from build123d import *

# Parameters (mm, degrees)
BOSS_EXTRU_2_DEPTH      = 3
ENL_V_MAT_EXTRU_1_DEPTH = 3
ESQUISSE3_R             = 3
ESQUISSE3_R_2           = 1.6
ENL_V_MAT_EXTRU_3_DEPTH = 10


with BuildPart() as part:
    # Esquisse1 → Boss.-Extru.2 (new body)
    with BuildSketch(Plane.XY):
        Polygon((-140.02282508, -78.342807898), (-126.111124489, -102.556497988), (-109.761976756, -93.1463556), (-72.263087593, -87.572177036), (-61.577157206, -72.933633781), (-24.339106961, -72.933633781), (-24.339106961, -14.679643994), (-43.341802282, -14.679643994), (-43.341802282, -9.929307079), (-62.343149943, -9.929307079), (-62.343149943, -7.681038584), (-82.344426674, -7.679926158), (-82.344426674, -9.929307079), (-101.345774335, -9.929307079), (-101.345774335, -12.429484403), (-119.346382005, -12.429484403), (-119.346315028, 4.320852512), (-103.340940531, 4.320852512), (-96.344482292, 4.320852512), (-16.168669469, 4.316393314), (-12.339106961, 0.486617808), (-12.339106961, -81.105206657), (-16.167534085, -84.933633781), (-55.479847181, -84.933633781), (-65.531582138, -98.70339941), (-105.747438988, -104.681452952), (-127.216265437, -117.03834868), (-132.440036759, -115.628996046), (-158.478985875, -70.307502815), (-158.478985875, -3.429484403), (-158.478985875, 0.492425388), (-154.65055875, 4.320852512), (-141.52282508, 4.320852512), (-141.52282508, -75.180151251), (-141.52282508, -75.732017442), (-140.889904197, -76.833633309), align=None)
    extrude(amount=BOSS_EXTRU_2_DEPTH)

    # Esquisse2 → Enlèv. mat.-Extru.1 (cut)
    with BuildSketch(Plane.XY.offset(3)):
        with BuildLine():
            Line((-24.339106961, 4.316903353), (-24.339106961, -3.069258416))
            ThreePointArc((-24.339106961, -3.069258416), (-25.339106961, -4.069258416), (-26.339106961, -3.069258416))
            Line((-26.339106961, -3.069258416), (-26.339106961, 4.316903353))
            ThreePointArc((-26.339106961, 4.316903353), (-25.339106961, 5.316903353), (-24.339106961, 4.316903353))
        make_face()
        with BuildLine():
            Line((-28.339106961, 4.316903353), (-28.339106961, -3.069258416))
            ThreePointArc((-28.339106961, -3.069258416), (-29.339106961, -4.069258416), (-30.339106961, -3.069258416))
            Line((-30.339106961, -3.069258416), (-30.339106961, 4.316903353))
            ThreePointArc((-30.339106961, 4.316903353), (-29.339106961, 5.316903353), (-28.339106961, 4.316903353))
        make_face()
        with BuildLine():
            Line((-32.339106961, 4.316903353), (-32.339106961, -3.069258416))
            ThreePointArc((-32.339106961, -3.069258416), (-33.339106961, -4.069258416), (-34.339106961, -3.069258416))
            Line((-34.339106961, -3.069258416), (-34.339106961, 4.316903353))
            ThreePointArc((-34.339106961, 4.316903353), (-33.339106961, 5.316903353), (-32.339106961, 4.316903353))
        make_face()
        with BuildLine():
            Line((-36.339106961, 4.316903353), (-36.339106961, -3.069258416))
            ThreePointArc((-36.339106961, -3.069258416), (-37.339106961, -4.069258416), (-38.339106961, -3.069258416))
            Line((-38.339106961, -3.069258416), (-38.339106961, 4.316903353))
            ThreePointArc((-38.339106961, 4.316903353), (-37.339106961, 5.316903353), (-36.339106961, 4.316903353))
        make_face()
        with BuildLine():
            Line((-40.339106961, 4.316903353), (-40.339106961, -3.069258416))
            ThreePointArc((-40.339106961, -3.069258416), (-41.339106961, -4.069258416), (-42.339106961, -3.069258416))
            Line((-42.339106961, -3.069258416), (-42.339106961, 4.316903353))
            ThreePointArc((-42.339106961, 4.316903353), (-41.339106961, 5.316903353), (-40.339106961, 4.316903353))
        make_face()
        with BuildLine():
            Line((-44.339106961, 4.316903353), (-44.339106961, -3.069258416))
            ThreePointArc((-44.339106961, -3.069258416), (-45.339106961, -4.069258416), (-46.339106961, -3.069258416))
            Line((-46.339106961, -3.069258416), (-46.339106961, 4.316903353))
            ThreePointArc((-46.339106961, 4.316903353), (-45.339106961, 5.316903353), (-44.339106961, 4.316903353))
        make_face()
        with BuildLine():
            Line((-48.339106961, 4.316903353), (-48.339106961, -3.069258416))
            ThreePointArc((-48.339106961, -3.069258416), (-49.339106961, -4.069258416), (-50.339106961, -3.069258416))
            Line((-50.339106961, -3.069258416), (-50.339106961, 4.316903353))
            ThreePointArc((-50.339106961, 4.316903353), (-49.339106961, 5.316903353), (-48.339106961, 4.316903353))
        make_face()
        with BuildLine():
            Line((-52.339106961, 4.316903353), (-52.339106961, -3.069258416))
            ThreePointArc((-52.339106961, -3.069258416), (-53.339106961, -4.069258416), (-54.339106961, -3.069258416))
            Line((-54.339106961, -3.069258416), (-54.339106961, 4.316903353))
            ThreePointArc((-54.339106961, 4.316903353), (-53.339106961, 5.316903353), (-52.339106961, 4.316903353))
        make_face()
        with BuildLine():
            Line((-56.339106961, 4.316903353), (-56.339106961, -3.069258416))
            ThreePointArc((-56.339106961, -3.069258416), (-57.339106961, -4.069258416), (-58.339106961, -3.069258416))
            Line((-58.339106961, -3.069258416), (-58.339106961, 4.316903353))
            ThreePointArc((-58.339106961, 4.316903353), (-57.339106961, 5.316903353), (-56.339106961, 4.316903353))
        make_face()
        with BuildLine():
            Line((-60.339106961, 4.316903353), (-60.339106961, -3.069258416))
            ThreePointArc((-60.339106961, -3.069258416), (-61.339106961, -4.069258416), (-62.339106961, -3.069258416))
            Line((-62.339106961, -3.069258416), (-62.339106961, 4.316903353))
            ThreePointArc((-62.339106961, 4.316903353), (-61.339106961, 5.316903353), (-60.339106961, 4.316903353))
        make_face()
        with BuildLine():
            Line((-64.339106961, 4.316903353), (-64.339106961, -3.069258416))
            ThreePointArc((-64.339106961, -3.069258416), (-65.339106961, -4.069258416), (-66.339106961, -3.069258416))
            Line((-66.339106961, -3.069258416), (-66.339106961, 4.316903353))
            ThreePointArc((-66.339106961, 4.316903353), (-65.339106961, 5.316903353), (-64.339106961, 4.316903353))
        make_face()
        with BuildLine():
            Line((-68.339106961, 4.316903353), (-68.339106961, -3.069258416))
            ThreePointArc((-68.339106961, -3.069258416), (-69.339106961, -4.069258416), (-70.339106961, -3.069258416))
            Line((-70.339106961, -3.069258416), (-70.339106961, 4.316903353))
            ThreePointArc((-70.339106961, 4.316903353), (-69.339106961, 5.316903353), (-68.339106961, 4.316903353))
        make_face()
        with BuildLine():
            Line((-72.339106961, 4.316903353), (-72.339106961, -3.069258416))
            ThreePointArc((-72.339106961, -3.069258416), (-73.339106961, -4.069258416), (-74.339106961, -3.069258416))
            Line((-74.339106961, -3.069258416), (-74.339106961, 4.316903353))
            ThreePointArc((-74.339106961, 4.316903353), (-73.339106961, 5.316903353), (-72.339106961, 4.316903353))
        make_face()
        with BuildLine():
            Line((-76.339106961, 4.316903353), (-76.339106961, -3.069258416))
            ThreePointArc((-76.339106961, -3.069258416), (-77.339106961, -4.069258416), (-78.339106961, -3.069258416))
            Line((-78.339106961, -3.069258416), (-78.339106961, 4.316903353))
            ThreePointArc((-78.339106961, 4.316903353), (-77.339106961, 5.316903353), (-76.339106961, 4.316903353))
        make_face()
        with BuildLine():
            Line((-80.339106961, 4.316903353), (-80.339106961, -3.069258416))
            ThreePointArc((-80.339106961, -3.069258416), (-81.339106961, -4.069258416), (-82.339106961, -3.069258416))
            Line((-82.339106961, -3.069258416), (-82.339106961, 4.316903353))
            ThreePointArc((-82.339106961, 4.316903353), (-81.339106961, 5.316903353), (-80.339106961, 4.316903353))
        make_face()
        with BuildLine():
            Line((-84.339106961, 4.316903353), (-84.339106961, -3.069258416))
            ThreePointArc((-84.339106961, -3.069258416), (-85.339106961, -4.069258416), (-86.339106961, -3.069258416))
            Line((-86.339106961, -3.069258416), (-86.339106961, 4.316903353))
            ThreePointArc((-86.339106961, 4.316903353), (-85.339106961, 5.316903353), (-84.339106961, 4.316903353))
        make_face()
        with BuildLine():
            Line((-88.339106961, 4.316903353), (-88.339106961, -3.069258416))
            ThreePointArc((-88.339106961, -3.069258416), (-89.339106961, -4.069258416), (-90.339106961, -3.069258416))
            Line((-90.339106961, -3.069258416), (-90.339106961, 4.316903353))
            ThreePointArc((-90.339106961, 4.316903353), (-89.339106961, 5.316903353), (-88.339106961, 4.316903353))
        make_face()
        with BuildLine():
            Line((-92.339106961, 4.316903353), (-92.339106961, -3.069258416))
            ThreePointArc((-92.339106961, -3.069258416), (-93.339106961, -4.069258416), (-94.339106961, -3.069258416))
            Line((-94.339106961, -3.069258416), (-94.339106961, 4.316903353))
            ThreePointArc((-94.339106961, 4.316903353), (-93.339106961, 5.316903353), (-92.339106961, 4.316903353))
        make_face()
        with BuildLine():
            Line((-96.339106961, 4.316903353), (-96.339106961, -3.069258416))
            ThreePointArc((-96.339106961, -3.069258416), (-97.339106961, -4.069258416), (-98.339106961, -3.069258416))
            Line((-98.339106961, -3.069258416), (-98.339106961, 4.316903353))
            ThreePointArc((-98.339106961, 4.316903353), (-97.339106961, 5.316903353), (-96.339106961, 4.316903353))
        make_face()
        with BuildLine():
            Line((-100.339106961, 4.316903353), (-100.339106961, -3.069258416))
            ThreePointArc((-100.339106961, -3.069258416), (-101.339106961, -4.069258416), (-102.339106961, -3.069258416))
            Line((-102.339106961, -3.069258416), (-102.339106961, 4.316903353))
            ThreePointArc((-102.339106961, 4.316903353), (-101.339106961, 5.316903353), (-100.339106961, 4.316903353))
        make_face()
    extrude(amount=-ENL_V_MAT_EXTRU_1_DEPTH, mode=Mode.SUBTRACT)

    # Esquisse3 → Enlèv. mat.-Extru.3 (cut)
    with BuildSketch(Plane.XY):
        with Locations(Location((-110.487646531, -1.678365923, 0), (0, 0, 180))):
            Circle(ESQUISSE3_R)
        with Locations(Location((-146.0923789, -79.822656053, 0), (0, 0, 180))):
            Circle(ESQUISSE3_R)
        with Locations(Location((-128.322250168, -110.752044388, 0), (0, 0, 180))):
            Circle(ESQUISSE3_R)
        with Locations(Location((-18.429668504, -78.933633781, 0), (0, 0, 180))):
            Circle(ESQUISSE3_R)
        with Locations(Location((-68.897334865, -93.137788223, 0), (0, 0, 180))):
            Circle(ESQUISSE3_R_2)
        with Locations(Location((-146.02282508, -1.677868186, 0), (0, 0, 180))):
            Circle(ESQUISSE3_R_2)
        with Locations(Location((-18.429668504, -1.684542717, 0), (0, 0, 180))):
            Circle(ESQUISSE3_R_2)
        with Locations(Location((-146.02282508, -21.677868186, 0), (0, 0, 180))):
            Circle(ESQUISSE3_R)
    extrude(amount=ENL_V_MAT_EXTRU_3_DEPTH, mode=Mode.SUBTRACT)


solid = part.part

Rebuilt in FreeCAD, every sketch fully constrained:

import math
import FreeCAD as App
import Part
import Sketcher

V = App.Vector
Q = App.Units.Quantity


def add_polygon(sketch, points):
    """Adds a closed chain of lines whose ends are joined by coincident constraints."""
    first, n = sketch.GeometryCount, len(points)
    for a, b in zip(points, points[1:] + points[:1]):
        sketch.addGeometry(Part.LineSegment(App.Vector(*a, 0), App.Vector(*b, 0)), False)
    for i in range(n):
        sketch.addConstraint(Sketcher.Constraint("Coincident", first + i, 2, first + (i + 1) % n, 1))

doc = App.newDocument("Part")
params = doc.addObject("Spreadsheet::Sheet", "Params")
for row, (alias, value) in enumerate([
    ("pad1_length", "3 mm"),
    ("sketch2_radius", "1 mm"),
    ("pocket1_length", "3 mm"),
    ("sketch3_diameter", "6 mm"),
    ("sketch3_diameter2", "3.2 mm"),
    ("pocket2_length", "10 mm"),
], start=1):
    params.set(f"A{row}", alias)
    params.set(f"B{row}", "=" + value)
    params.setAlias(f"B{row}", alias)

body = doc.addObject("PartDesign::Body", "Body")

# Sketch on XY plane
sketch1 = doc.addObject("Sketcher::SketchObject", "Sketch")
body.addObject(sketch1)
sketch1.AttachmentSupport = (doc.XY_Plane, [""])
sketch1.MapMode = "FlatFace"
add_polygon(sketch1, [(-126.1, -102.6), (-140, -78.3), (-140.9, -76.8), (-141.5, -75.7), (-141.5, 4.3), (-154.7, 4.3), (-158.5, 0.5), (-158.5, -70.3), (-132.4, -115.6), (-127.2, -117), (-105.7, -104.7), (-65.5, -98.7), (-55.5, -84.9), (-16.2, -84.9), (-12.3, -81.1), (-12.3, 0.5), (-16.2, 4.3), (-96.3, 4.3), (-119.3, 4.3), (-119.3, -12.4), (-101.3, -12.4), (-101.3, -9.9), (-82.3, -9.9), (-82.3, -7.7), (-62.3, -7.7), (-62.3, -9.9), (-43.3, -9.9), (-43.3, -14.7), (-24.3, -14.7), (-24.3, -72.9), (-61.6, -72.9), (-72.3, -87.6), (-109.8, -93.1)])  # lines 0-32
sketch1.addConstraint([
    Sketcher.Constraint("Vertical", 3),
    Sketcher.Constraint("Horizontal", 4),
    Sketcher.Constraint("Vertical", 6),
    Sketcher.Constraint("Horizontal", 12),
    Sketcher.Constraint("Vertical", 14),
    Sketcher.Constraint("Horizontal", 17),
    Sketcher.Constraint("Horizontal", 19),
    Sketcher.Constraint("Vertical", 20),
    Sketcher.Constraint("Horizontal", 21),
    Sketcher.Constraint("Vertical", 22),
    Sketcher.Constraint("Vertical", 24),
    Sketcher.Constraint("Horizontal", 25),
    Sketcher.Constraint("Vertical", 26),
    Sketcher.Constraint("Horizontal", 27),
    Sketcher.Constraint("Vertical", 28),
    Sketcher.Constraint("Horizontal", 29),
    Sketcher.Constraint("Parallel", 0, 1),
    Sketcher.Constraint("Parallel", 1, 2),
    Sketcher.Constraint("Parallel", 2, 7),
    Sketcher.Constraint("Parallel", 5, 13),
    Sketcher.Constraint("Parallel", 16, 23),
    Sketcher.Constraint("Parallel", 11, 30),
    Sketcher.Constraint("Parallel", 10, 31),
    Sketcher.Constraint("Parallel", 9, 32),
    Sketcher.Constraint("Horizontal", 4, 2, 16, 2),
    Sketcher.Constraint("Horizontal", 21, 2, 24, 2),
    Sketcher.Constraint("Equal", 21, 25),
    Sketcher.Constraint("Equal", 5, 13),
    Sketcher.Constraint("Angle", 5, Q("-135 deg")),
    Sketcher.Constraint("DistanceX", 27, 2, 14, 2, 12.0),
    Sketcher.Constraint("DistanceY", 12, 2, 28, 2, 12.0),
    Sketcher.Constraint("DistanceX", 2, 2, 0, 2, 1.5),
    Sketcher.Constraint("DistanceX", 29, 2, 29, 1, 37.23805),
    Sketcher.Constraint("DistanceY", 3, 1, 3, 2, 80.05287),
    Sketcher.Constraint("DistanceY", 6, 2, 6, 1, 70.799928),
    Sketcher.Constraint("DistanceY", 22, 1, 22, 2, 2.249381),
    Sketcher.Constraint("DistanceY", 24, 2, 24, 1, 2.248268),
    Sketcher.Constraint("DistanceY", 28, 2, 28, 1, 58.25399),
    Sketcher.Constraint("DistanceY", 10, 2, -1, 1, 98.703399),
    Sketcher.Constraint("DistanceY", 13, 2, 15, 2, 85.4216),
    Sketcher.Constraint("DistanceX", 18, 2, 16, 2, 23.0019),
    Sketcher.Constraint("DistanceY", 25, 2, 15, 2, 14.2457),
    Sketcher.Constraint("DistanceY", 7, 2, 32, 2, 13.072498),
    Sketcher.Constraint("DistanceX", 0, 2, 32, 2, 13.911701),
    Sketcher.Constraint("Distance", 2, 1.270491),
    Sketcher.Constraint("Distance", 8, 5.410551),
    Sketcher.Constraint("Distance", 9, 24.771019),
    Sketcher.Constraint("Distance", 11, 17.048279),
    Sketcher.Constraint("Distance", 15, 5.41597),
    Sketcher.Constraint("Distance", 30, 18.123908),
    Sketcher.Constraint("DistanceX", 4, 2, 4, 1, 13.127734),
    Sketcher.Constraint("DistanceX", 12, 1, 12, 2, 39.312313),
    Sketcher.Constraint("DistanceX", 17, 2, 17, 1, 23.001833),
    Sketcher.Constraint("DistanceX", 19, 1, 19, 2, 18.000608),
    Sketcher.Constraint("DistanceX", 21, 1, 21, 2, 19.001348),
    Sketcher.Constraint("DistanceX", 27, 1, 27, 2, 19.002695),
    Sketcher.Constraint("DistanceY", 14, 1, 14, 2, 81.591824),
    Sketcher.Constraint("DistanceY", 20, 1, 20, 2, 2.500177),
    Sketcher.Constraint("DistanceY", 26, 2, 26, 1, 4.750337),
    Sketcher.Constraint("DistanceX", 4, 2, -1, 1, 154.650559),
    Sketcher.Constraint("DistanceY", 8, 2, -1, 1, 117.038349),
    Sketcher.Constraint("DistanceX", 9, 2, -1, 1, 105.747439),
    Sketcher.Constraint("DistanceX", 15, 2, -1, 1, 16.168669),
    Sketcher.Constraint("DistanceY", 23, 2, -1, 1, 7.681039),
    Sketcher.Constraint("DistanceX", 1, 2, 0, 2, 0.867079),
    Sketcher.Constraint("DistanceX", 3, 2, 17, 2, 22.17651),
])
pad1 = doc.addObject("PartDesign::Pad", "Pad")
body.addObject(pad1)
pad1.Profile = sketch1
pad1.setExpression("Length", "Params.pad1_length")

# Sketch on XY plane
sketch2 = doc.addObject("Sketcher::SketchObject", "Sketch001")
body.addObject(sketch2)
sketch2.AttachmentSupport = (doc.XY_Plane, [""])
sketch2.MapMode = "FlatFace"
sketch2.AttachmentOffset = App.Placement(V(0, 0, 3), App.Rotation())
sketch2.addGeometry([
    Part.LineSegment(V(-24.3, -3.1, 0), V(-24.3, 4.3, 0)),  # 0
    Part.ArcOfCircle(Part.Circle(V(-25.3, 4.3, 0), V(0, 0, 1), 1), math.radians(0), math.radians(180)),  # 1
    Part.LineSegment(V(-26.3, 4.3, 0), V(-26.3, -3.1, 0)),  # 2
    Part.ArcOfCircle(Part.Circle(V(-25.3, -3.1, 0), V(0, 0, 1), 1), math.radians(180), math.radians(360)),  # 3
    Part.LineSegment(V(-28.3, -3.1, 0), V(-28.3, 4.3, 0)),  # 4
    Part.ArcOfCircle(Part.Circle(V(-29.3, 4.3, 0), V(0, 0, 1), 1), math.radians(0), math.radians(180)),  # 5
    Part.LineSegment(V(-30.3, 4.3, 0), V(-30.3, -3.1, 0)),  # 6
    Part.ArcOfCircle(Part.Circle(V(-29.3, -3.1, 0), V(0, 0, 1), 1), math.radians(180), math.radians(360)),  # 7
    Part.LineSegment(V(-32.3, -3.1, 0), V(-32.3, 4.3, 0)),  # 8
    Part.ArcOfCircle(Part.Circle(V(-33.3, 4.3, 0), V(0, 0, 1), 1), math.radians(0), math.radians(180)),  # 9
    Part.LineSegment(V(-34.3, 4.3, 0), V(-34.3, -3.1, 0)),  # 10
    Part.ArcOfCircle(Part.Circle(V(-33.3, -3.1, 0), V(0, 0, 1), 1), math.radians(180), math.radians(360)),  # 11
    Part.LineSegment(V(-36.3, -3.1, 0), V(-36.3, 4.3, 0)),  # 12
    Part.ArcOfCircle(Part.Circle(V(-37.3, 4.3, 0), V(0, 0, 1), 1), math.radians(0), math.radians(180)),  # 13
    Part.LineSegment(V(-38.3, 4.3, 0), V(-38.3, -3.1, 0)),  # 14
    Part.ArcOfCircle(Part.Circle(V(-37.3, -3.1, 0), V(0, 0, 1), 1), math.radians(180), math.radians(360)),  # 15
    Part.LineSegment(V(-40.3, -3.1, 0), V(-40.3, 4.3, 0)),  # 16
    Part.ArcOfCircle(Part.Circle(V(-41.3, 4.3, 0), V(0, 0, 1), 1), math.radians(0), math.radians(180)),  # 17
    Part.LineSegment(V(-42.3, 4.3, 0), V(-42.3, -3.1, 0)),  # 18
    Part.ArcOfCircle(Part.Circle(V(-41.3, -3.1, 0), V(0, 0, 1), 1), math.radians(180), math.radians(360)),  # 19
    Part.LineSegment(V(-44.3, -3.1, 0), V(-44.3, 4.3, 0)),  # 20
    Part.ArcOfCircle(Part.Circle(V(-45.3, 4.3, 0), V(0, 0, 1), 1), math.radians(0), math.radians(180)),  # 21
    Part.LineSegment(V(-46.3, 4.3, 0), V(-46.3, -3.1, 0)),  # 22
    Part.ArcOfCircle(Part.Circle(V(-45.3, -3.1, 0), V(0, 0, 1), 1), math.radians(180), math.radians(360)),  # 23
    Part.LineSegment(V(-48.3, -3.1, 0), V(-48.3, 4.3, 0)),  # 24
    Part.ArcOfCircle(Part.Circle(V(-49.3, 4.3, 0), V(0, 0, 1), 1), math.radians(0), math.radians(180)),  # 25
    Part.LineSegment(V(-50.3, 4.3, 0), V(-50.3, -3.1, 0)),  # 26
    Part.ArcOfCircle(Part.Circle(V(-49.3, -3.1, 0), V(0, 0, 1), 1), math.radians(180), math.radians(360)),  # 27
    Part.LineSegment(V(-52.3, -3.1, 0), V(-52.3, 4.3, 0)),  # 28
    Part.ArcOfCircle(Part.Circle(V(-53.3, 4.3, 0), V(0, 0, 1), 1), math.radians(0), math.radians(180)),  # 29
    Part.LineSegment(V(-54.3, 4.3, 0), V(-54.3, -3.1, 0)),  # 30
    Part.ArcOfCircle(Part.Circle(V(-53.3, -3.1, 0), V(0, 0, 1), 1), math.radians(180), math.radians(360)),  # 31
    Part.LineSegment(V(-56.3, -3.1, 0), V(-56.3, 4.3, 0)),  # 32
    Part.ArcOfCircle(Part.Circle(V(-57.3, 4.3, 0), V(0, 0, 1), 1), math.radians(0), math.radians(180)),  # 33
    Part.LineSegment(V(-58.3, 4.3, 0), V(-58.3, -3.1, 0)),  # 34
    Part.ArcOfCircle(Part.Circle(V(-57.3, -3.1, 0), V(0, 0, 1), 1), math.radians(180), math.radians(360)),  # 35
    Part.LineSegment(V(-60.3, -3.1, 0), V(-60.3, 4.3, 0)),  # 36
    Part.ArcOfCircle(Part.Circle(V(-61.3, 4.3, 0), V(0, 0, 1), 1), math.radians(0), math.radians(180)),  # 37
    Part.LineSegment(V(-62.3, 4.3, 0), V(-62.3, -3.1, 0)),  # 38
    Part.ArcOfCircle(Part.Circle(V(-61.3, -3.1, 0), V(0, 0, 1), 1), math.radians(180), math.radians(360)),  # 39
    Part.LineSegment(V(-64.3, -3.1, 0), V(-64.3, 4.3, 0)),  # 40
    Part.ArcOfCircle(Part.Circle(V(-65.3, 4.3, 0), V(0, 0, 1), 1), math.radians(0), math.radians(180)),  # 41
    Part.LineSegment(V(-66.3, 4.3, 0), V(-66.3, -3.1, 0)),  # 42
    Part.ArcOfCircle(Part.Circle(V(-65.3, -3.1, 0), V(0, 0, 1), 1), math.radians(180), math.radians(360)),  # 43
    Part.LineSegment(V(-68.3, -3.1, 0), V(-68.3, 4.3, 0)),  # 44
    Part.ArcOfCircle(Part.Circle(V(-69.3, 4.3, 0), V(0, 0, 1), 1), math.radians(0), math.radians(180)),  # 45
    Part.LineSegment(V(-70.3, 4.3, 0), V(-70.3, -3.1, 0)),  # 46
    Part.ArcOfCircle(Part.Circle(V(-69.3, -3.1, 0), V(0, 0, 1), 1), math.radians(180), math.radians(360)),  # 47
    Part.LineSegment(V(-72.3, -3.1, 0), V(-72.3, 4.3, 0)),  # 48
    Part.ArcOfCircle(Part.Circle(V(-73.3, 4.3, 0), V(0, 0, 1), 1), math.radians(0), math.radians(180)),  # 49
    Part.LineSegment(V(-74.3, 4.3, 0), V(-74.3, -3.1, 0)),  # 50
    Part.ArcOfCircle(Part.Circle(V(-73.3, -3.1, 0), V(0, 0, 1), 1), math.radians(180), math.radians(360)),  # 51
    Part.LineSegment(V(-76.3, -3.1, 0), V(-76.3, 4.3, 0)),  # 52
    Part.ArcOfCircle(Part.Circle(V(-77.3, 4.3, 0), V(0, 0, 1), 1), math.radians(0), math.radians(180)),  # 53
    Part.LineSegment(V(-78.3, 4.3, 0), V(-78.3, -3.1, 0)),  # 54
    Part.ArcOfCircle(Part.Circle(V(-77.3, -3.1, 0), V(0, 0, 1), 1), math.radians(180), math.radians(360)),  # 55
    Part.LineSegment(V(-80.3, -3.1, 0), V(-80.3, 4.3, 0)),  # 56
    Part.ArcOfCircle(Part.Circle(V(-81.3, 4.3, 0), V(0, 0, 1), 1), math.radians(0), math.radians(180)),  # 57
    Part.LineSegment(V(-82.3, 4.3, 0), V(-82.3, -3.1, 0)),  # 58
    Part.ArcOfCircle(Part.Circle(V(-81.3, -3.1, 0), V(0, 0, 1), 1), math.radians(180), math.radians(360)),  # 59
    Part.LineSegment(V(-84.3, -3.1, 0), V(-84.3, 4.3, 0)),  # 60
    Part.ArcOfCircle(Part.Circle(V(-85.3, 4.3, 0), V(0, 0, 1), 1), math.radians(0), math.radians(180)),  # 61
    Part.LineSegment(V(-86.3, 4.3, 0), V(-86.3, -3.1, 0)),  # 62
    Part.ArcOfCircle(Part.Circle(V(-85.3, -3.1, 0), V(0, 0, 1), 1), math.radians(180), math.radians(360)),  # 63
    Part.LineSegment(V(-88.3, -3.1, 0), V(-88.3, 4.3, 0)),  # 64
    Part.ArcOfCircle(Part.Circle(V(-89.3, 4.3, 0), V(0, 0, 1), 1), math.radians(0), math.radians(180)),  # 65
    Part.LineSegment(V(-90.3, 4.3, 0), V(-90.3, -3.1, 0)),  # 66
    Part.ArcOfCircle(Part.Circle(V(-89.3, -3.1, 0), V(0, 0, 1), 1), math.radians(180), math.radians(360)),  # 67
    Part.LineSegment(V(-92.3, -3.1, 0), V(-92.3, 4.3, 0)),  # 68
    Part.ArcOfCircle(Part.Circle(V(-93.3, 4.3, 0), V(0, 0, 1), 1), math.radians(0), math.radians(180)),  # 69
    Part.LineSegment(V(-94.3, 4.3, 0), V(-94.3, -3.1, 0)),  # 70
    Part.ArcOfCircle(Part.Circle(V(-93.3, -3.1, 0), V(0, 0, 1), 1), math.radians(180), math.radians(360)),  # 71
    Part.LineSegment(V(-96.3, -3.1, 0), V(-96.3, 4.3, 0)),  # 72
    Part.ArcOfCircle(Part.Circle(V(-97.3, 4.3, 0), V(0, 0, 1), 1), math.radians(0), math.radians(180)),  # 73
    Part.LineSegment(V(-98.3, 4.3, 0), V(-98.3, -3.1, 0)),  # 74
    Part.ArcOfCircle(Part.Circle(V(-97.3, -3.1, 0), V(0, 0, 1), 1), math.radians(180), math.radians(360)),  # 75
    Part.LineSegment(V(-100.3, -3.1, 0), V(-100.3, 4.3, 0)),  # 76
    Part.ArcOfCircle(Part.Circle(V(-101.3, 4.3, 0), V(0, 0, 1), 1), math.radians(0), math.radians(180)),  # 77
    Part.LineSegment(V(-102.3, 4.3, 0), V(-102.3, -3.1, 0)),  # 78
    Part.ArcOfCircle(Part.Circle(V(-101.3, -3.1, 0), V(0, 0, 1), 1), math.radians(180), math.radians(360)),  # 79
], False)
sketch2.addConstraint([
    Sketcher.Constraint("Tangent", 0, 2, 1, 1),
    Sketcher.Constraint("Tangent", 1, 2, 2, 1),
    Sketcher.Constraint("Tangent", 2, 2, 3, 1),
    Sketcher.Constraint("Tangent", 3, 2, 0, 1),
    Sketcher.Constraint("Tangent", 4, 2, 5, 1),
    Sketcher.Constraint("Tangent", 5, 2, 6, 1),
    Sketcher.Constraint("Tangent", 6, 2, 7, 1),
    Sketcher.Constraint("Tangent", 7, 2, 4, 1),
    Sketcher.Constraint("Tangent", 8, 2, 9, 1),
    Sketcher.Constraint("Tangent", 9, 2, 10, 1),
    Sketcher.Constraint("Tangent", 10, 2, 11, 1),
    Sketcher.Constraint("Tangent", 11, 2, 8, 1),
    Sketcher.Constraint("Tangent", 12, 2, 13, 1),
    Sketcher.Constraint("Tangent", 13, 2, 14, 1),
    Sketcher.Constraint("Tangent", 14, 2, 15, 1),
    Sketcher.Constraint("Tangent", 15, 2, 12, 1),
    Sketcher.Constraint("Tangent", 16, 2, 17, 1),
    Sketcher.Constraint("Tangent", 17, 2, 18, 1),
    Sketcher.Constraint("Tangent", 18, 2, 19, 1),
    Sketcher.Constraint("Tangent", 19, 2, 16, 1),
    Sketcher.Constraint("Tangent", 20, 2, 21, 1),
    Sketcher.Constraint("Tangent", 21, 2, 22, 1),
    Sketcher.Constraint("Tangent", 22, 2, 23, 1),
    Sketcher.Constraint("Tangent", 23, 2, 20, 1),
    Sketcher.Constraint("Tangent", 24, 2, 25, 1),
    Sketcher.Constraint("Tangent", 25, 2, 26, 1),
    Sketcher.Constraint("Tangent", 26, 2, 27, 1),
    Sketcher.Constraint("Tangent", 27, 2, 24, 1),
    Sketcher.Constraint("Tangent", 28, 2, 29, 1),
    Sketcher.Constraint("Tangent", 29, 2, 30, 1),
    Sketcher.Constraint("Tangent", 30, 2, 31, 1),
    Sketcher.Constraint("Tangent", 31, 2, 28, 1),
    Sketcher.Constraint("Tangent", 32, 2, 33, 1),
    Sketcher.Constraint("Tangent", 33, 2, 34, 1),
    Sketcher.Constraint("Tangent", 34, 2, 35, 1),
    Sketcher.Constraint("Tangent", 35, 2, 32, 1),
    Sketcher.Constraint("Tangent", 36, 2, 37, 1),
    Sketcher.Constraint("Tangent", 37, 2, 38, 1),
    Sketcher.Constraint("Tangent", 38, 2, 39, 1),
    Sketcher.Constraint("Tangent", 39, 2, 36, 1),
    Sketcher.Constraint("Tangent", 40, 2, 41, 1),
    Sketcher.Constraint("Tangent", 41, 2, 42, 1),
    Sketcher.Constraint("Tangent", 42, 2, 43, 1),
    Sketcher.Constraint("Tangent", 43, 2, 40, 1),
    Sketcher.Constraint("Tangent", 44, 2, 45, 1),
    Sketcher.Constraint("Tangent", 45, 2, 46, 1),
    Sketcher.Constraint("Tangent", 46, 2, 47, 1),
    Sketcher.Constraint("Tangent", 47, 2, 44, 1),
    Sketcher.Constraint("Tangent", 48, 2, 49, 1),
    Sketcher.Constraint("Tangent", 49, 2, 50, 1),
    Sketcher.Constraint("Tangent", 50, 2, 51, 1),
    Sketcher.Constraint("Tangent", 51, 2, 48, 1),
    Sketcher.Constraint("Tangent", 52, 2, 53, 1),
    Sketcher.Constraint("Tangent", 53, 2, 54, 1),
    Sketcher.Constraint("Tangent", 54, 2, 55, 1),
    Sketcher.Constraint("Tangent", 55, 2, 52, 1),
    Sketcher.Constraint("Tangent", 56, 2, 57, 1),
    Sketcher.Constraint("Tangent", 57, 2, 58, 1),
    Sketcher.Constraint("Tangent", 58, 2, 59, 1),
    Sketcher.Constraint("Tangent", 59, 2, 56, 1),
    Sketcher.Constraint("Tangent", 60, 2, 61, 1),
    Sketcher.Constraint("Tangent", 61, 2, 62, 1),
    Sketcher.Constraint("Tangent", 62, 2, 63, 1),
    Sketcher.Constraint("Tangent", 63, 2, 60, 1),
    Sketcher.Constraint("Tangent", 64, 2, 65, 1),
    Sketcher.Constraint("Tangent", 65, 2, 66, 1),
    Sketcher.Constraint("Tangent", 66, 2, 67, 1),
    Sketcher.Constraint("Tangent", 67, 2, 64, 1),
    Sketcher.Constraint("Tangent", 68, 2, 69, 1),
    Sketcher.Constraint("Tangent", 69, 2, 70, 1),
    Sketcher.Constraint("Tangent", 70, 2, 71, 1),
    Sketcher.Constraint("Tangent", 71, 2, 68, 1),
    Sketcher.Constraint("Tangent", 72, 2, 73, 1),
    Sketcher.Constraint("Tangent", 73, 2, 74, 1),
    Sketcher.Constraint("Tangent", 74, 2, 75, 1),
    Sketcher.Constraint("Tangent", 75, 2, 72, 1),
    Sketcher.Constraint("Tangent", 76, 2, 77, 1),
    Sketcher.Constraint("Tangent", 77, 2, 78, 1),
    Sketcher.Constraint("Tangent", 78, 2, 79, 1),
    Sketcher.Constraint("Tangent", 79, 2, 76, 1),
    Sketcher.Constraint("Vertical", 0),
    Sketcher.Constraint("Vertical", 2),
    Sketcher.Constraint("Vertical", 4),
    Sketcher.Constraint("Vertical", 6),
    Sketcher.Constraint("Vertical", 8),
    Sketcher.Constraint("Vertical", 10),
    Sketcher.Constraint("Vertical", 12),
    Sketcher.Constraint("Vertical", 14),
    Sketcher.Constraint("Vertical", 16),
    Sketcher.Constraint("Vertical", 18),
    Sketcher.Constraint("Vertical", 20),
    Sketcher.Constraint("Vertical", 22),
    Sketcher.Constraint("Vertical", 24),
    Sketcher.Constraint("Vertical", 26),
    Sketcher.Constraint("Vertical", 28),
    Sketcher.Constraint("Vertical", 30),
    Sketcher.Constraint("Vertical", 32),
    Sketcher.Constraint("Vertical", 34),
    Sketcher.Constraint("Vertical", 36),
    Sketcher.Constraint("Vertical", 38),
    Sketcher.Constraint("Vertical", 40),
    Sketcher.Constraint("Vertical", 42),
    Sketcher.Constraint("Vertical", 44),
    Sketcher.Constraint("Vertical", 46),
    Sketcher.Constraint("Vertical", 48),
    Sketcher.Constraint("Vertical", 50),
    Sketcher.Constraint("Vertical", 52),
    Sketcher.Constraint("Vertical", 54),
    Sketcher.Constraint("Vertical", 56),
    Sketcher.Constraint("Vertical", 58),
    Sketcher.Constraint("Vertical", 60),
    Sketcher.Constraint("Vertical", 62),
    Sketcher.Constraint("Vertical", 64),
    Sketcher.Constraint("Vertical", 66),
    Sketcher.Constraint("Vertical", 68),
    Sketcher.Constraint("Vertical", 70),
    Sketcher.Constraint("Vertical", 72),
    Sketcher.Constraint("Vertical", 74),
    Sketcher.Constraint("Vertical", 76),
    Sketcher.Constraint("Vertical", 78),
    Sketcher.Constraint("Equal", 3, 5),
    Sketcher.Constraint("Equal", 7, 9),
    Sketcher.Constraint("Equal", 11, 13),
    Sketcher.Constraint("Equal", 15, 17),
    Sketcher.Constraint("Equal", 19, 21),
    Sketcher.Constraint("Equal", 23, 25),
    Sketcher.Constraint("Equal", 27, 29),
    Sketcher.Constraint("Equal", 31, 33),
    Sketcher.Constraint("Equal", 35, 37),
    Sketcher.Constraint("Equal", 39, 41),
    Sketcher.Constraint("Equal", 43, 45),
    Sketcher.Constraint("Equal", 47, 49),
    Sketcher.Constraint("Equal", 51, 53),
    Sketcher.Constraint("Equal", 55, 57),
    Sketcher.Constraint("Equal", 59, 61),
    Sketcher.Constraint("Equal", 63, 65),
    Sketcher.Constraint("Equal", 67, 69),
    Sketcher.Constraint("Equal", 71, 73),
    Sketcher.Constraint("Equal", 75, 77),
    Sketcher.Constraint("Horizontal", 1, 3, 5, 3),
    Sketcher.Constraint("Horizontal", 3, 3, 7, 3),
    Sketcher.Constraint("Horizontal", 5, 3, 9, 3),
    Sketcher.Constraint("Horizontal", 7, 3, 11, 3),
    Sketcher.Constraint("Horizontal", 9, 3, 13, 3),
    Sketcher.Constraint("Horizontal", 11, 3, 15, 3),
    Sketcher.Constraint("Horizontal", 13, 3, 17, 3),
    Sketcher.Constraint("Horizontal", 15, 3, 19, 3),
    Sketcher.Constraint("Horizontal", 17, 3, 21, 3),
    Sketcher.Constraint("Horizontal", 19, 3, 23, 3),
    Sketcher.Constraint("Horizontal", 21, 3, 25, 3),
    Sketcher.Constraint("Horizontal", 23, 3, 27, 3),
    Sketcher.Constraint("Horizontal", 25, 3, 29, 3),
    Sketcher.Constraint("Horizontal", 27, 3, 31, 3),
    Sketcher.Constraint("Horizontal", 29, 3, 33, 3),
    Sketcher.Constraint("Horizontal", 31, 3, 35, 3),
    Sketcher.Constraint("Horizontal", 33, 3, 37, 3),
    Sketcher.Constraint("Horizontal", 35, 3, 39, 3),
    Sketcher.Constraint("Horizontal", 37, 3, 41, 3),
    Sketcher.Constraint("Horizontal", 39, 3, 43, 3),
    Sketcher.Constraint("Horizontal", 41, 3, 45, 3),
    Sketcher.Constraint("Horizontal", 43, 3, 47, 3),
    Sketcher.Constraint("Horizontal", 45, 3, 49, 3),
    Sketcher.Constraint("Horizontal", 47, 3, 51, 3),
    Sketcher.Constraint("Horizontal", 49, 3, 53, 3),
    Sketcher.Constraint("Horizontal", 51, 3, 55, 3),
    Sketcher.Constraint("Horizontal", 53, 3, 57, 3),
    Sketcher.Constraint("Horizontal", 55, 3, 59, 3),
    Sketcher.Constraint("Horizontal", 57, 3, 61, 3),
    Sketcher.Constraint("Horizontal", 59, 3, 63, 3),
    Sketcher.Constraint("Horizontal", 61, 3, 65, 3),
    Sketcher.Constraint("Horizontal", 63, 3, 67, 3),
    Sketcher.Constraint("Horizontal", 65, 3, 69, 3),
    Sketcher.Constraint("Horizontal", 67, 3, 71, 3),
    Sketcher.Constraint("Horizontal", 69, 3, 73, 3),
    Sketcher.Constraint("Horizontal", 71, 3, 75, 3),
    Sketcher.Constraint("Horizontal", 73, 3, 77, 3),
    Sketcher.Constraint("Horizontal", 75, 3, 79, 3),
    Sketcher.Constraint("Radius", 1, 1.0),
    Sketcher.Constraint("DistanceY", 0, 1, 0, 2, 7.386162),
    Sketcher.Constraint("DistanceY", 3, 3, -1, 1, 3.069258),
    Sketcher.Constraint("DistanceX", 1, 3, -1, 1, 25.339107),
    Sketcher.Constraint("DistanceX", 5, 3, -1, 1, 29.339107),
    Sketcher.Constraint("DistanceX", 9, 3, -1, 1, 33.339107),
    Sketcher.Constraint("DistanceX", 13, 3, -1, 1, 37.339107),
    Sketcher.Constraint("DistanceX", 17, 3, -1, 1, 41.339107),
    Sketcher.Constraint("DistanceX", 21, 3, -1, 1, 45.339107),
    Sketcher.Constraint("DistanceX", 25, 3, -1, 1, 49.339107),
    Sketcher.Constraint("DistanceX", 29, 3, -1, 1, 53.339107),
    Sketcher.Constraint("DistanceX", 33, 3, -1, 1, 57.339107),
    Sketcher.Constraint("DistanceX", 37, 3, -1, 1, 61.339107),
    Sketcher.Constraint("DistanceX", 41, 3, -1, 1, 65.339107),
    Sketcher.Constraint("DistanceX", 45, 3, -1, 1, 69.339107),
    Sketcher.Constraint("DistanceX", 49, 3, -1, 1, 73.339107),
    Sketcher.Constraint("DistanceX", 53, 3, -1, 1, 77.339107),
    Sketcher.Constraint("DistanceX", 57, 3, -1, 1, 81.339107),
    Sketcher.Constraint("DistanceX", 61, 3, -1, 1, 85.339107),
    Sketcher.Constraint("DistanceX", 65, 3, -1, 1, 89.339107),
    Sketcher.Constraint("DistanceX", 69, 3, -1, 1, 93.339107),
    Sketcher.Constraint("DistanceX", 73, 3, -1, 1, 97.339107),
    Sketcher.Constraint("DistanceX", 77, 3, -1, 1, 101.339107),
])
sketch2.setExpression("Constraints[177]", "Params.sketch2_radius")
pocket1 = doc.addObject("PartDesign::Pocket", "Pocket")
body.addObject(pocket1)
pocket1.Profile = sketch2
pocket1.setExpression("Length", "Params.pocket1_length")

# Sketch on XY plane
sketch3 = doc.addObject("Sketcher::SketchObject", "Sketch002")
body.addObject(sketch3)
sketch3.AttachmentSupport = (doc.XY_Plane, [""])
sketch3.MapMode = "FlatFace"
sketch3.addGeometry([
    Part.Circle(V(-110.5, -1.7, 0), V(0, 0, 1), 3),  # 0
    Part.Circle(V(-146.1, -79.8, 0), V(0, 0, 1), 3),  # 1
    Part.Circle(V(-128.3, -110.8, 0), V(0, 0, 1), 3),  # 2
    Part.Circle(V(-18.4, -78.9, 0), V(0, 0, 1), 3),  # 3
    Part.Circle(V(-68.9, -93.1, 0), V(0, 0, 1), 1.6),  # 4
    Part.Circle(V(-146, -1.7, 0), V(0, 0, 1), 1.6),  # 5
    Part.Circle(V(-18.4, -1.7, 0), V(0, 0, 1), 1.6),  # 6
    Part.Circle(V(-146, -21.7, 0), V(0, 0, 1), 3),  # 7
], False)
sketch3.addConstraint([
    Sketcher.Constraint("Equal", 0, 1),
    Sketcher.Constraint("Equal", 1, 2),
    Sketcher.Constraint("Equal", 2, 3),
    Sketcher.Constraint("Equal", 4, 5),
    Sketcher.Constraint("Equal", 5, 6),
    Sketcher.Constraint("Equal", 3, 7),
    Sketcher.Constraint("Vertical", 3, 3, 6, 3),
    Sketcher.Constraint("Vertical", 5, 3, 7, 3),
    Sketcher.Constraint("Diameter", 0, 6.0),
    Sketcher.Constraint("Diameter", 4, 3.2),
    Sketcher.Constraint("DistanceY", 7, 3, 5, 3, 20.0),
    Sketcher.Constraint("DistanceX", 1, 3, -1, 1, 146.092379),
    Sketcher.Constraint("DistanceX", 2, 3, -1, 1, 128.32225),
    Sketcher.Constraint("DistanceX", 3, 3, -1, 1, 18.429669),
    Sketcher.Constraint("DistanceY", 4, 3, -1, 1, 93.137788),
    Sketcher.Constraint("DistanceY", 5, 3, -1, 1, 1.677868),
    Sketcher.Constraint("DistanceY", 1, 3, 0, 3, 78.14429),
    Sketcher.Constraint("DistanceY", 2, 3, 1, 3, 30.929388),
    Sketcher.Constraint("DistanceY", 2, 3, 3, 3, 31.818411),
    Sketcher.Constraint("DistanceX", 0, 3, 3, 3, 92.057978),
    Sketcher.Constraint("DistanceX", 0, 3, 4, 3, 41.590312),
    Sketcher.Constraint("DistanceX", 5, 3, 0, 3, 35.535179),
    Sketcher.Constraint("DistanceY", 3, 3, 6, 3, 77.249091),
    Sketcher.Constraint("DistanceY", 0, 3, -1, 1, 1.678366),
])
sketch3.setExpression("Constraints[8]", "Params.sketch3_diameter")
sketch3.setExpression("Constraints[9]", "Params.sketch3_diameter2")
pocket2 = doc.addObject("PartDesign::Pocket", "Pocket001")
body.addObject(pocket2)
pocket2.Profile = sketch3
pocket2.setExpression("Length", "Params.pocket2_length")
pocket2.Reversed = True

doc.recompute()
